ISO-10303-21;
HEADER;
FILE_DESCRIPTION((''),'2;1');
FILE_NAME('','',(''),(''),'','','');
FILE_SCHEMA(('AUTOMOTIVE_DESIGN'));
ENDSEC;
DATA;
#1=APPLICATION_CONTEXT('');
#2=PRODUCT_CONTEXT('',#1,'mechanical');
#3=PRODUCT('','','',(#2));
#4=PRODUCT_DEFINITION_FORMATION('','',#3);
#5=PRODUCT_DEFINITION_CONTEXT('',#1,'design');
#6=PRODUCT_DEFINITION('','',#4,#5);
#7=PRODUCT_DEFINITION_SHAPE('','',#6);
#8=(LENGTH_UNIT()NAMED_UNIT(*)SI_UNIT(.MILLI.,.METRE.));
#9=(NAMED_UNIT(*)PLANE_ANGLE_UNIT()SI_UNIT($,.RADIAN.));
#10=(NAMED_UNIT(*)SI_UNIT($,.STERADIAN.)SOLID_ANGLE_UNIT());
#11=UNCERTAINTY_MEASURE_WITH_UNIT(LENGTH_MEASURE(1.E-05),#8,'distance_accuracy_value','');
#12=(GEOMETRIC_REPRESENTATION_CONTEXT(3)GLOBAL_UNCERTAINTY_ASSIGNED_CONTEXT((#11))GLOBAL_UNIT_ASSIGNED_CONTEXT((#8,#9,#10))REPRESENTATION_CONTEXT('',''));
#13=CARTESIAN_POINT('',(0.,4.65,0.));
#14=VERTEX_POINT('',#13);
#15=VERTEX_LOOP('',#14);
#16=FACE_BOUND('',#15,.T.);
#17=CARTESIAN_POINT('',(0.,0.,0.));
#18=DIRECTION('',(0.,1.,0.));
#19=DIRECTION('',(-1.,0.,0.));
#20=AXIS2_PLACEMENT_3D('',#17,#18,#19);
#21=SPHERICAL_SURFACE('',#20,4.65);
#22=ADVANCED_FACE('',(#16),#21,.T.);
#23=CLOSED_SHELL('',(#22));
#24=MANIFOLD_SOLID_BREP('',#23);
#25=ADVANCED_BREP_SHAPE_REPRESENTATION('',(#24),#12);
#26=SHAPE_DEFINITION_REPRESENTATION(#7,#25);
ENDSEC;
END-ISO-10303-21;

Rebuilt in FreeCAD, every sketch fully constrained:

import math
import FreeCAD as App
import Part
import Sketcher

V = App.Vector

doc = App.newDocument("Part")
body = doc.addObject("PartDesign::Body", "Body")

sketch1 = body.newObject("Sketcher::SketchObject", "Sketch")
sketch1.AttachmentSupport = (doc.getObject("XY_Plane"), [""])
sketch1.MapMode = "FlatFace"
sketch1.addGeometry([
    Part.LineSegment(V(0, -4.7, 0), V(0, 4.7, 0)),
    Part.ArcOfCircle(Part.Circle(V(0, 0, 0), V(0, 0, 1), 4.7), math.radians(90), math.radians(270)),
], False)
sketch1.addConstraint([
    Sketcher.Constraint("Coincident", 0, 1, 1, 2),
    Sketcher.Constraint("Coincident", 1, 1, 0, 2),
    Sketcher.Constraint("Vertical", 0),
    Sketcher.Constraint("Coincident", 1, 3, -1, 1),
    Sketcher.Constraint("PointOnObject", 0, 1, -2),
    Sketcher.Constraint("Radius", 1, 4.65),
])
revolution = body.newObject("PartDesign::Revolution", "Revolution")
revolution.Profile = sketch1
revolution.ReferenceAxis = (sketch1, ["V_Axis"])
revolution.Angle = 360

doc.recompute()
